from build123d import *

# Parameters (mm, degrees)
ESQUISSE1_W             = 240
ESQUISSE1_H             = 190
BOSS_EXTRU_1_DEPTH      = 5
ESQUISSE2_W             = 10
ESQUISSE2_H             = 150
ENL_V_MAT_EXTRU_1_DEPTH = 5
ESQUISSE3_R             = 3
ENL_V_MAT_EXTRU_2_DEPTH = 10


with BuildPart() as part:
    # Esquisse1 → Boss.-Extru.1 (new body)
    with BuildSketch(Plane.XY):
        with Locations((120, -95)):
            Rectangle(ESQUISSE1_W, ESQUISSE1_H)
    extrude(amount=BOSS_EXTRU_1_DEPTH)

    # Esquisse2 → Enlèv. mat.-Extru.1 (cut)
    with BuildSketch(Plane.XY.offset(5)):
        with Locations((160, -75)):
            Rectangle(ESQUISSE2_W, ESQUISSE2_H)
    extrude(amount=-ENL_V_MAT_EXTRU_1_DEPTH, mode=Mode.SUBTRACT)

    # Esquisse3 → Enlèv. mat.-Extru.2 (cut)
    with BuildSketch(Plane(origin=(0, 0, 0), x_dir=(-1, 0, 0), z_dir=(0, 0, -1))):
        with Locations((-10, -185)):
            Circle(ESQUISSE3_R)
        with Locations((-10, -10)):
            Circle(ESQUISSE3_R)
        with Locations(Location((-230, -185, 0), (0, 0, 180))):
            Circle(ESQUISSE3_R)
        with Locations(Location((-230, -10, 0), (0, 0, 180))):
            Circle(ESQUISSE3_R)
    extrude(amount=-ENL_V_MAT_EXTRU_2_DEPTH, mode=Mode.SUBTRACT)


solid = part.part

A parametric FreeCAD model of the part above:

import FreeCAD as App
import Part
import Sketcher
from FreeCAD import Vector
Q = App.Units.Quantity


def add_polygon(sketch, points):
    """Adds a closed chain of lines whose ends are joined by coincident constraints."""
    first, n = sketch.GeometryCount, len(points)
    for a, b in zip(points, points[1:] + points[:1]):
        sketch.addGeometry(Part.LineSegment(App.Vector(*a, 0), App.Vector(*b, 0)), False)
    for i in range(n):
        sketch.addConstraint(Sketcher.Constraint("Coincident", first + i, 2, first + (i + 1) % n, 1))

doc = App.newDocument("Part")
body = doc.addObject("PartDesign::Body", "Body")

sketch1 = doc.addObject("Sketcher::SketchObject", "Sketch")
body.addObject(sketch1)
sketch1.AttachmentSupport = (doc.XY_Plane, [""])
sketch1.MapMode = "FlatFace"
add_polygon(sketch1, [(0, 0), (0, -190), (240, -190), (240, 0)])
sketch1.addConstraint([
    Sketcher.Constraint("Vertical", 0),
    Sketcher.Constraint("Horizontal", 1),
    Sketcher.Constraint("Vertical", 2),
    Sketcher.Constraint("Horizontal", 3),
    Sketcher.Constraint("Coincident", 3, 2, -1, 1),
    Sketcher.Constraint("DistanceX", 1, 1, 1, 2, Q("240 mm")),
    Sketcher.Constraint("DistanceY", 0, 2, 0, 1, Q("190 mm")),
])
pad1 = doc.addObject("PartDesign::Pad", "Pad")
body.addObject(pad1)
pad1.Profile = sketch1
pad1.Length = 5

sketch2 = doc.addObject("Sketcher::SketchObject", "Sketch001")
body.addObject(sketch2)
sketch2.AttachmentSupport = (doc.XY_Plane, [""])
sketch2.MapMode = "FlatFace"
sketch2.AttachmentOffset = App.Placement(Vector(0, 0, 5), App.Rotation())
add_polygon(sketch2, [(155, 0), (155, -150), (165, -150), (165, 0)])
sketch2.addConstraint([
    Sketcher.Constraint("Vertical", 0),
    Sketcher.Constraint("Horizontal", 1),
    Sketcher.Constraint("Vertical", 2),
    Sketcher.Constraint("Horizontal", 3),
    Sketcher.Constraint("PointOnObject", 2, 2, -1),
    Sketcher.Constraint("DistanceX", 1, 1, 1, 2, Q("10 mm")),
    Sketcher.Constraint("DistanceY", 0, 2, 0, 1, Q("150 mm")),
    Sketcher.Constraint("DistanceX", -1, 1, 0, 2, Q("155 mm")),
])
pocket1 = doc.addObject("PartDesign::Pocket", "Pocket")
body.addObject(pocket1)
pocket1.Profile = sketch2
pocket1.Length = 5

sketch3 = doc.addObject("Sketcher::SketchObject", "Sketch002")
body.addObject(sketch3)
sketch3.AttachmentSupport = (doc.XY_Plane, [""])
sketch3.MapMode = "FlatFace"
sketch3.addGeometry([
    Part.Circle(Vector(10, -185, 0), Vector(0, 0, 1), 3),
    Part.Circle(Vector(10, -10, 0), Vector(0, 0, 1), 3),
    Part.Circle(Vector(230, -185, 0), Vector(0, 0, 1), 3),
    Part.Circle(Vector(230, -10, 0), Vector(0, 0, 1), 3),
], False)
sketch3.addConstraint([
    Sketcher.Constraint("Equal", 0, 1),
    Sketcher.Constraint("Equal", 1, 2),
    Sketcher.Constraint("Equal", 2, 3),
    Sketcher.Constraint("Horizontal", 0, 3, 2, 3),
    Sketcher.Constraint("Horizontal", 1, 3, 3, 3),
    Sketcher.Constraint("Vertical", 0, 3, 1, 3),
    Sketcher.Constraint("Vertical", 2, 3, 3, 3),
    Sketcher.Constraint("Diameter", 0, Q("6 mm")),
    Sketcher.Constraint("DistanceX", -1, 1, 0, 3, Q("10 mm")),
    Sketcher.Constraint("DistanceY", 0, 3, -1, 1, Q("185 mm")),
    Sketcher.Constraint("DistanceY", 1, 3, -1, 1, Q("10 mm")),
    Sketcher.Constraint("DistanceX", -1, 1, 2, 3, Q("230 mm")),
])
pocket2 = doc.addObject("PartDesign::Pocket", "Pocket001")
body.addObject(pocket2)
pocket2.Profile = sketch3
pocket2.Length = 10
pocket2.Reversed = True

doc.recompute()
